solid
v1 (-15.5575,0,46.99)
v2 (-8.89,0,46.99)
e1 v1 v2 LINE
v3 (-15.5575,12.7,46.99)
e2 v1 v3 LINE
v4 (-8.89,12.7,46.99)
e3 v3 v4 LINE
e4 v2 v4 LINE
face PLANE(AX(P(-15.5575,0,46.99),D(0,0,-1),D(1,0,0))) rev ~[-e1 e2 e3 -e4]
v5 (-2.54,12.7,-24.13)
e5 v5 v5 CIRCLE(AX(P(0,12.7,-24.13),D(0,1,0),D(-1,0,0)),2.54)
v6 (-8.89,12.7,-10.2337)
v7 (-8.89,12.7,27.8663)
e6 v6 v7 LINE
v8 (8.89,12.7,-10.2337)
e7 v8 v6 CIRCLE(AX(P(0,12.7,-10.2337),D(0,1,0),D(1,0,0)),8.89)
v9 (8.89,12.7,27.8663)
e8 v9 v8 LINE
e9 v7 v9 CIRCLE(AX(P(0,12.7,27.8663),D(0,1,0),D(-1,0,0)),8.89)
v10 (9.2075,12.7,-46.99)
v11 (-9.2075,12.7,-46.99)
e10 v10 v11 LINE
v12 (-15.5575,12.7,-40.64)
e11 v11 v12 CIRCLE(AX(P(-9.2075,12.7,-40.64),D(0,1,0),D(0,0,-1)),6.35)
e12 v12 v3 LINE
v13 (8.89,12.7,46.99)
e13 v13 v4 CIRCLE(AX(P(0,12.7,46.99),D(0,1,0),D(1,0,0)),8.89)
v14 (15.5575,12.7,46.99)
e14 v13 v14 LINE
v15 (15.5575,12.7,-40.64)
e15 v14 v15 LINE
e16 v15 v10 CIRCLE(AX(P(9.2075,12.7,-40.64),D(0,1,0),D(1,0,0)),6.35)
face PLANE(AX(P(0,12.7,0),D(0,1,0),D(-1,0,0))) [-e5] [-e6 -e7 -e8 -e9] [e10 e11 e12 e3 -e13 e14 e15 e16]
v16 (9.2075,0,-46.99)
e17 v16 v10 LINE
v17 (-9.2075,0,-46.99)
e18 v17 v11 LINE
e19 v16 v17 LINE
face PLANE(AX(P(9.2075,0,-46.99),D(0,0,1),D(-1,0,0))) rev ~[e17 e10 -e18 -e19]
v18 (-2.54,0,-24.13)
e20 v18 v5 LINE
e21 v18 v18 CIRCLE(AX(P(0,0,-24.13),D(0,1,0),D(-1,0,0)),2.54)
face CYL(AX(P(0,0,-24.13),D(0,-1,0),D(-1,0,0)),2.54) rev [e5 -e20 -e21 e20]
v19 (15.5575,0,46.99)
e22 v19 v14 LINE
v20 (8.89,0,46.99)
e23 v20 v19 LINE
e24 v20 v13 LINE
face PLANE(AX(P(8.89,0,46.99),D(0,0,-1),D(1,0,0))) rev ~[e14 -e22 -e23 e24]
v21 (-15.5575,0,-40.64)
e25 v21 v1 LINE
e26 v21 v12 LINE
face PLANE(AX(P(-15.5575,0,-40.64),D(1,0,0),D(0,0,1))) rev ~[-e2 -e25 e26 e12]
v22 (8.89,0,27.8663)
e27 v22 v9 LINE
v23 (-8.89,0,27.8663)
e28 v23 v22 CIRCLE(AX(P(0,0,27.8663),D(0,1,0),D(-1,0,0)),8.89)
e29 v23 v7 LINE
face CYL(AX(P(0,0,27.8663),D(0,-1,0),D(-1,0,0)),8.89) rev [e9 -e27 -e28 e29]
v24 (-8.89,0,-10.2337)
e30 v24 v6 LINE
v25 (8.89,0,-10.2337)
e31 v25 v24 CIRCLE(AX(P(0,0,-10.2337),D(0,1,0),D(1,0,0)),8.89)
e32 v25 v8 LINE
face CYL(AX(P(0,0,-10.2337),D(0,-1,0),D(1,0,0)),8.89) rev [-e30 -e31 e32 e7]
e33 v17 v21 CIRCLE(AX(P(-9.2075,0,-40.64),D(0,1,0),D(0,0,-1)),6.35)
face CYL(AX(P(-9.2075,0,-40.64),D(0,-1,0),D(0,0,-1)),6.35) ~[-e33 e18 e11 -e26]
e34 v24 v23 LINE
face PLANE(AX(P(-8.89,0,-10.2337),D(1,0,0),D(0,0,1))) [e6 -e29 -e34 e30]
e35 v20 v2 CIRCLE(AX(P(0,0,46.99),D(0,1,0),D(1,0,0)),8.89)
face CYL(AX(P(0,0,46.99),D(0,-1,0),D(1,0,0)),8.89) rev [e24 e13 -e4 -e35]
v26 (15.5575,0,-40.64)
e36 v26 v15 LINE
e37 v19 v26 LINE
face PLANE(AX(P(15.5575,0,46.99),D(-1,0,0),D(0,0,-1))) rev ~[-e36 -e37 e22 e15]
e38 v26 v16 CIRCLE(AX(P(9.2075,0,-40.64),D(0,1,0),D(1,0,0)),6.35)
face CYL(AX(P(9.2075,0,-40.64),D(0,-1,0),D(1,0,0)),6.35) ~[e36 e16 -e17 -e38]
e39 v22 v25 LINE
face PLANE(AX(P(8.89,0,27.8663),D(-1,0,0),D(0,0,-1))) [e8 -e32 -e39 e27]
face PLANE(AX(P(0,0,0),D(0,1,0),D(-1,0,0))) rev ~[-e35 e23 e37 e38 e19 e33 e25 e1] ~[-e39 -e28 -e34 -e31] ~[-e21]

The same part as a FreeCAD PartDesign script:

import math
import FreeCAD as App
import Part
import Sketcher
from FreeCAD import Vector
Q = App.Units.Quantity

doc = App.newDocument("Part")
body = doc.addObject("PartDesign::Body", "Body")

# Sketch on XZ plane
sketch1 = body.newObject("Sketcher::SketchObject", "Sketch")
sketch1.AttachmentSupport = (doc.getObject("XZ_Plane"), [""])
sketch1.MapMode = "FlatFace"
sketch1.addGeometry(Part.ArcOfCircle(Part.Circle(Vector(9.2075, -40.64, 0), Vector(0, 0, 1), 6.35), math.radians(-90), math.radians(0)), False)
sketch1.addGeometry(Part.LineSegment(Vector(9.2075, -46.99, 0), Vector(-9.2075, -46.99, 0)), False)
sketch1.addGeometry(Part.ArcOfCircle(Part.Circle(Vector(-9.2075, -40.64, 0), Vector(0, 0, 1), 6.35), math.radians(180), math.radians(270)), False)
sketch1.addGeometry(Part.LineSegment(Vector(-15.5575, -40.64, 0), Vector(-15.5575, 46.99, 0)), False)
sketch1.addGeometry(Part.LineSegment(Vector(-15.5575, 46.99, 0), Vector(-8.89, 46.99, 0)), False)
sketch1.addGeometry(Part.ArcOfCircle(Part.Circle(Vector(0, 46.99, 0), Vector(0, 0, 1), 8.89), math.radians(180), math.radians(360)), False)
sketch1.addGeometry(Part.LineSegment(Vector(8.89, 46.99, 0), Vector(15.5575, 46.99, 0)), False)
sketch1.addGeometry(Part.LineSegment(Vector(15.5575, 46.99, 0), Vector(15.5575, -40.64, 0)), False)
sketch1.addGeometry(Part.Circle(Vector(0, -24.13, 0), Vector(0, 0, 1), 2.54), False)
sketch1.addGeometry(Part.LineSegment(Vector(-8.89, 27.8663, 0), Vector(-8.89, -10.2337, 0)), False)
sketch1.addGeometry(Part.ArcOfCircle(Part.Circle(Vector(0, -10.2337, 0), Vector(0, 0, 1), 8.89), math.radians(180), math.radians(360)), False)
sketch1.addGeometry(Part.LineSegment(Vector(8.89, -10.2337, 0), Vector(8.89, 27.8663, 0)), False)
sketch1.addGeometry(Part.ArcOfCircle(Part.Circle(Vector(0, 27.8663, 0), Vector(0, 0, 1), 8.89), math.radians(0), math.radians(180)), False)
sketch1.addConstraint(Sketcher.Constraint("Tangent", 0, 1, 1, 1))
sketch1.addConstraint(Sketcher.Constraint("Tangent", 1, 2, 2, 2))
sketch1.addConstraint(Sketcher.Constraint("Tangent", 2, 1, 3, 1))
sketch1.addConstraint(Sketcher.Constraint("Coincident", 3, 2, 4, 1))
sketch1.addConstraint(Sketcher.Constraint("Coincident", 4, 2, 5, 1))
sketch1.addConstraint(Sketcher.Constraint("Coincident", 5, 2, 6, 1))
sketch1.addConstraint(Sketcher.Constraint("Coincident", 6, 2, 7, 1))
sketch1.addConstraint(Sketcher.Constraint("Tangent", 7, 2, 0, 2))
sketch1.addConstraint(Sketcher.Constraint("Tangent", 9, 2, 10, 1))
sketch1.addConstraint(Sketcher.Constraint("Tangent", 10, 2, 11, 1))
sketch1.addConstraint(Sketcher.Constraint("Tangent", 11, 2, 12, 1))
sketch1.addConstraint(Sketcher.Constraint("Tangent", 12, 2, 9, 1))
sketch1.addConstraint(Sketcher.Constraint("Horizontal", 1))
sketch1.addConstraint(Sketcher.Constraint("Vertical", 3))
sketch1.addConstraint(Sketcher.Constraint("Horizontal", 4))
sketch1.addConstraint(Sketcher.Constraint("Horizontal", 6))
sketch1.addConstraint(Sketcher.Constraint("Vertical", 7))
sketch1.addConstraint(Sketcher.Constraint("Vertical", 9))
sketch1.addConstraint(Sketcher.Constraint("Vertical", 11))
sketch1.addConstraint(Sketcher.Constraint("Equal", 0, 2))
sketch1.addConstraint(Sketcher.Constraint("Equal", 5, 10))
sketch1.addConstraint(Sketcher.Constraint("Symmetric", 4, 2, 5, 2, -2))
sketch1.addConstraint(Sketcher.Constraint("PointOnObject", 8, 3, -2))
sketch1.addConstraint(Sketcher.Constraint("PointOnObject", 10, 3, -2))
sketch1.addConstraint(Sketcher.Constraint("Horizontal", 5, 3, 3, 2))
sketch1.addConstraint(Sketcher.Constraint("Equal", 4, 6))
sketch1.addConstraint(Sketcher.Constraint("Diameter", 8, Q("0.2 in")))
sketch1.addConstraint(Sketcher.Constraint("Radius", 0, Q("0.25 in")))
sketch1.addConstraint(Sketcher.Constraint("Radius", 5, Q("0.35 in")))
sketch1.addConstraint(Sketcher.Constraint("DistanceY", 9, 2, 9, 1, Q("1.5 in")))
sketch1.addConstraint(Sketcher.Constraint("DistanceY", 0, 1, 8, 3, Q("0.9 in")))
sketch1.addConstraint(Sketcher.Constraint("DistanceX", 3, 2, 6, 2, Q("1.225 in")))
sketch1.addConstraint(Sketcher.Constraint("DistanceY", 3, 1, 3, 2, Q("3.45 in")))
sketch1.addConstraint(Sketcher.Constraint("DistanceY", 0, 3, -1, 1, Q("1.6 in")))
sketch1.addConstraint(Sketcher.Constraint("DistanceY", 10, 3, -1, 1, Q("0.4029 in")))
pad1 = body.newObject("PartDesign::Pad", "Pad")
pad1.Profile = sketch1
pad1.Length = Q("0.5 in")
pad1.Reversed = True

doc.recompute()
